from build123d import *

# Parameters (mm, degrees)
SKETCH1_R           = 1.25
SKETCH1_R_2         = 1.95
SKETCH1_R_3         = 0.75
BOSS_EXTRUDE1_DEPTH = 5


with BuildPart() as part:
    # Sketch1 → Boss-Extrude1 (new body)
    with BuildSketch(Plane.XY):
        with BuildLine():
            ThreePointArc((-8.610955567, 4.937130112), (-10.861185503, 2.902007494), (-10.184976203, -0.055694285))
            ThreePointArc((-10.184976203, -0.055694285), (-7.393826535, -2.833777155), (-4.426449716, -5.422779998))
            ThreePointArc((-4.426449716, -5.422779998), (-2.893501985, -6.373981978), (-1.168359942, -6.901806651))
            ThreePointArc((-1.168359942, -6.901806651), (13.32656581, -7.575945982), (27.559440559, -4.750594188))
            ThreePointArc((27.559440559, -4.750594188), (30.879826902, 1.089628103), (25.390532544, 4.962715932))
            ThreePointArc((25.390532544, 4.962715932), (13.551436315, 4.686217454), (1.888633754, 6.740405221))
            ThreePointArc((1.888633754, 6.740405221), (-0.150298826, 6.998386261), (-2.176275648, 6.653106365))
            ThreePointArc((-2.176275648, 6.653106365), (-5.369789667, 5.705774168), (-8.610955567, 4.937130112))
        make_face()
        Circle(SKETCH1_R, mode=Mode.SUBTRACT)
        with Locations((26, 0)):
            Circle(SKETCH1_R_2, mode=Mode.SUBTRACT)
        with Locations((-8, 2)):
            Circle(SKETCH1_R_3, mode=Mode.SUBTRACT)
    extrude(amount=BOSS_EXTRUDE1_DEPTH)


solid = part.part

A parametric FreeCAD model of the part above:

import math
import FreeCAD as App
import Part
import Sketcher
from FreeCAD import Vector
Q = App.Units.Quantity

doc = App.newDocument("Part")
params = doc.addObject("Spreadsheet::Sheet", "Params")
for row, (alias, value) in enumerate([
    ("sketch1_radius", "3 mm"),
    ("sketch1_radius2", "60 mm"),
    ("sketch1_radius3", "7 mm"),
    ("sketch1_radius4", "5 mm"),
    ("sketch1_diameter", "2.5 mm"),
    ("pad1_length", "5 mm"),
], start=1):
    params.set(f"A{row}", alias)
    params.set(f"B{row}", "=" + value)
    params.setAlias(f"B{row}", alias)

body = doc.addObject("PartDesign::Body", "Body")

# Sketch on XY plane
sketch1 = doc.addObject("Sketcher::SketchObject", "Sketch")
body.addObject(sketch1)
sketch1.AttachmentSupport = (doc.XY_Plane, [""])
sketch1.MapMode = "FlatFace"
sketch1.addGeometry(Part.ArcOfCircle(Part.Circle(Vector(-8, 2, 0), Vector(0, 0, 1), 3), math.radians(102), math.radians(223)), False)
sketch1.addGeometry(Part.ArcOfCircle(Part.Circle(Vector(33.5, 41.1, 0), Vector(0, 0, 1), 60), math.radians(-136.75), math.radians(-129.22)), False)
sketch1.addGeometry(Part.ArcOfCircle(Part.Circle(Vector(0, 0, 0), Vector(0, 0, 1), 7), math.radians(-129), math.radians(-100)), False)
sketch1.addGeometry(Part.ArcOfCircle(Part.Circle(Vector(8.8, 52.3, 0), Vector(0, 0, 1), 60), math.radians(-100), math.radians(-72)), False)
sketch1.addGeometry(Part.ArcOfCircle(Part.Circle(Vector(26, 0, 0), Vector(0, 0, 1), 5), math.radians(-72), math.radians(97)), False)
sketch1.addGeometry(Part.ArcOfCircle(Part.Circle(Vector(18.1, 64.5, 0), Vector(0, 0, 1), 60), math.radians(-106), math.radians(-83)), False)
sketch1.addGeometry(Part.ArcOfCircle(Part.Circle(Vector(0, 0, 0), Vector(0, 0, 1), 7), math.radians(74), math.radians(108)), False)
sketch1.addGeometry(Part.ArcOfCircle(Part.Circle(Vector(-20.8, 63.7, 0), Vector(0, 0, 1), 60), math.radians(-78.25), math.radians(-71.89)), False)
sketch1.addGeometry(Part.Circle(Vector(0, 0, 0), Vector(0, 0, 1), 1.2), False)
sketch1.addGeometry(Part.Circle(Vector(26, 0, 0), Vector(0, 0, 1), 1.9), False)
sketch1.addGeometry(Part.Circle(Vector(-8, 2, 0), Vector(0, 0, 1), 0.8), False)
sketch1.addConstraint(Sketcher.Constraint("Tangent", 0, 2, 1, 1))
sketch1.addConstraint(Sketcher.Constraint("Tangent", 1, 2, 2, 1))
sketch1.addConstraint(Sketcher.Constraint("Tangent", 2, 2, 3, 1))
sketch1.addConstraint(Sketcher.Constraint("Tangent", 3, 2, 4, 1))
sketch1.addConstraint(Sketcher.Constraint("Tangent", 4, 2, 5, 2))
sketch1.addConstraint(Sketcher.Constraint("Tangent", 5, 1, 6, 1))
sketch1.addConstraint(Sketcher.Constraint("Tangent", 6, 2, 7, 2))
sketch1.addConstraint(Sketcher.Constraint("Tangent", 7, 1, 0, 1))
sketch1.addConstraint(Sketcher.Constraint("Coincident", 2, 3, -1, 1))
sketch1.addConstraint(Sketcher.Constraint("Coincident", 6, 3, -1, 1))
sketch1.addConstraint(Sketcher.Constraint("Coincident", 8, 3, -1, 1))
sketch1.addConstraint(Sketcher.Constraint("Coincident", 9, 3, 4, 3))
sketch1.addConstraint(Sketcher.Constraint("Coincident", 10, 3, 0, 3))
sketch1.addConstraint(Sketcher.Constraint("Equal", 1, 3))
sketch1.addConstraint(Sketcher.Constraint("Equal", 3, 5))
sketch1.addConstraint(Sketcher.Constraint("Equal", 2, 6))
sketch1.addConstraint(Sketcher.Constraint("Equal", 5, 7))
sketch1.addConstraint(Sketcher.Constraint("PointOnObject", 4, 3, -1))
sketch1.addConstraint(Sketcher.Constraint("Radius", 0, Q("3 mm")))
sketch1.addConstraint(Sketcher.Constraint("Radius", 1, Q("60 mm")))
sketch1.addConstraint(Sketcher.Constraint("Radius", 2, Q("7 mm")))
sketch1.addConstraint(Sketcher.Constraint("Radius", 4, Q("5 mm")))
sketch1.addConstraint(Sketcher.Constraint("Diameter", 8, Q("2.5 mm")))
sketch1.addConstraint(Sketcher.Constraint("Diameter", 9, Q("3.9 mm")))
sketch1.addConstraint(Sketcher.Constraint("Diameter", 10, Q("1.5 mm")))
sketch1.addConstraint(Sketcher.Constraint("DistanceX", 0, 3, -1, 1, Q("8 mm")))
sketch1.addConstraint(Sketcher.Constraint("DistanceY", -1, 1, 0, 3, Q("2 mm")))
sketch1.addConstraint(Sketcher.Constraint("DistanceX", -1, 1, 4, 3, Q("26 mm")))
sketch1.setExpression("Constraints[18]", "Params.sketch1_radius")
sketch1.setExpression("Constraints[19]", "Params.sketch1_radius2")
sketch1.setExpression("Constraints[20]", "Params.sketch1_radius3")
sketch1.setExpression("Constraints[21]", "Params.sketch1_radius4")
sketch1.setExpression("Constraints[22]", "Params.sketch1_diameter")
pad1 = doc.addObject("PartDesign::Pad", "Pad")
body.addObject(pad1)
pad1.Profile = sketch1
pad1.setExpression("Length", "Params.pad1_length")

doc.recompute()
